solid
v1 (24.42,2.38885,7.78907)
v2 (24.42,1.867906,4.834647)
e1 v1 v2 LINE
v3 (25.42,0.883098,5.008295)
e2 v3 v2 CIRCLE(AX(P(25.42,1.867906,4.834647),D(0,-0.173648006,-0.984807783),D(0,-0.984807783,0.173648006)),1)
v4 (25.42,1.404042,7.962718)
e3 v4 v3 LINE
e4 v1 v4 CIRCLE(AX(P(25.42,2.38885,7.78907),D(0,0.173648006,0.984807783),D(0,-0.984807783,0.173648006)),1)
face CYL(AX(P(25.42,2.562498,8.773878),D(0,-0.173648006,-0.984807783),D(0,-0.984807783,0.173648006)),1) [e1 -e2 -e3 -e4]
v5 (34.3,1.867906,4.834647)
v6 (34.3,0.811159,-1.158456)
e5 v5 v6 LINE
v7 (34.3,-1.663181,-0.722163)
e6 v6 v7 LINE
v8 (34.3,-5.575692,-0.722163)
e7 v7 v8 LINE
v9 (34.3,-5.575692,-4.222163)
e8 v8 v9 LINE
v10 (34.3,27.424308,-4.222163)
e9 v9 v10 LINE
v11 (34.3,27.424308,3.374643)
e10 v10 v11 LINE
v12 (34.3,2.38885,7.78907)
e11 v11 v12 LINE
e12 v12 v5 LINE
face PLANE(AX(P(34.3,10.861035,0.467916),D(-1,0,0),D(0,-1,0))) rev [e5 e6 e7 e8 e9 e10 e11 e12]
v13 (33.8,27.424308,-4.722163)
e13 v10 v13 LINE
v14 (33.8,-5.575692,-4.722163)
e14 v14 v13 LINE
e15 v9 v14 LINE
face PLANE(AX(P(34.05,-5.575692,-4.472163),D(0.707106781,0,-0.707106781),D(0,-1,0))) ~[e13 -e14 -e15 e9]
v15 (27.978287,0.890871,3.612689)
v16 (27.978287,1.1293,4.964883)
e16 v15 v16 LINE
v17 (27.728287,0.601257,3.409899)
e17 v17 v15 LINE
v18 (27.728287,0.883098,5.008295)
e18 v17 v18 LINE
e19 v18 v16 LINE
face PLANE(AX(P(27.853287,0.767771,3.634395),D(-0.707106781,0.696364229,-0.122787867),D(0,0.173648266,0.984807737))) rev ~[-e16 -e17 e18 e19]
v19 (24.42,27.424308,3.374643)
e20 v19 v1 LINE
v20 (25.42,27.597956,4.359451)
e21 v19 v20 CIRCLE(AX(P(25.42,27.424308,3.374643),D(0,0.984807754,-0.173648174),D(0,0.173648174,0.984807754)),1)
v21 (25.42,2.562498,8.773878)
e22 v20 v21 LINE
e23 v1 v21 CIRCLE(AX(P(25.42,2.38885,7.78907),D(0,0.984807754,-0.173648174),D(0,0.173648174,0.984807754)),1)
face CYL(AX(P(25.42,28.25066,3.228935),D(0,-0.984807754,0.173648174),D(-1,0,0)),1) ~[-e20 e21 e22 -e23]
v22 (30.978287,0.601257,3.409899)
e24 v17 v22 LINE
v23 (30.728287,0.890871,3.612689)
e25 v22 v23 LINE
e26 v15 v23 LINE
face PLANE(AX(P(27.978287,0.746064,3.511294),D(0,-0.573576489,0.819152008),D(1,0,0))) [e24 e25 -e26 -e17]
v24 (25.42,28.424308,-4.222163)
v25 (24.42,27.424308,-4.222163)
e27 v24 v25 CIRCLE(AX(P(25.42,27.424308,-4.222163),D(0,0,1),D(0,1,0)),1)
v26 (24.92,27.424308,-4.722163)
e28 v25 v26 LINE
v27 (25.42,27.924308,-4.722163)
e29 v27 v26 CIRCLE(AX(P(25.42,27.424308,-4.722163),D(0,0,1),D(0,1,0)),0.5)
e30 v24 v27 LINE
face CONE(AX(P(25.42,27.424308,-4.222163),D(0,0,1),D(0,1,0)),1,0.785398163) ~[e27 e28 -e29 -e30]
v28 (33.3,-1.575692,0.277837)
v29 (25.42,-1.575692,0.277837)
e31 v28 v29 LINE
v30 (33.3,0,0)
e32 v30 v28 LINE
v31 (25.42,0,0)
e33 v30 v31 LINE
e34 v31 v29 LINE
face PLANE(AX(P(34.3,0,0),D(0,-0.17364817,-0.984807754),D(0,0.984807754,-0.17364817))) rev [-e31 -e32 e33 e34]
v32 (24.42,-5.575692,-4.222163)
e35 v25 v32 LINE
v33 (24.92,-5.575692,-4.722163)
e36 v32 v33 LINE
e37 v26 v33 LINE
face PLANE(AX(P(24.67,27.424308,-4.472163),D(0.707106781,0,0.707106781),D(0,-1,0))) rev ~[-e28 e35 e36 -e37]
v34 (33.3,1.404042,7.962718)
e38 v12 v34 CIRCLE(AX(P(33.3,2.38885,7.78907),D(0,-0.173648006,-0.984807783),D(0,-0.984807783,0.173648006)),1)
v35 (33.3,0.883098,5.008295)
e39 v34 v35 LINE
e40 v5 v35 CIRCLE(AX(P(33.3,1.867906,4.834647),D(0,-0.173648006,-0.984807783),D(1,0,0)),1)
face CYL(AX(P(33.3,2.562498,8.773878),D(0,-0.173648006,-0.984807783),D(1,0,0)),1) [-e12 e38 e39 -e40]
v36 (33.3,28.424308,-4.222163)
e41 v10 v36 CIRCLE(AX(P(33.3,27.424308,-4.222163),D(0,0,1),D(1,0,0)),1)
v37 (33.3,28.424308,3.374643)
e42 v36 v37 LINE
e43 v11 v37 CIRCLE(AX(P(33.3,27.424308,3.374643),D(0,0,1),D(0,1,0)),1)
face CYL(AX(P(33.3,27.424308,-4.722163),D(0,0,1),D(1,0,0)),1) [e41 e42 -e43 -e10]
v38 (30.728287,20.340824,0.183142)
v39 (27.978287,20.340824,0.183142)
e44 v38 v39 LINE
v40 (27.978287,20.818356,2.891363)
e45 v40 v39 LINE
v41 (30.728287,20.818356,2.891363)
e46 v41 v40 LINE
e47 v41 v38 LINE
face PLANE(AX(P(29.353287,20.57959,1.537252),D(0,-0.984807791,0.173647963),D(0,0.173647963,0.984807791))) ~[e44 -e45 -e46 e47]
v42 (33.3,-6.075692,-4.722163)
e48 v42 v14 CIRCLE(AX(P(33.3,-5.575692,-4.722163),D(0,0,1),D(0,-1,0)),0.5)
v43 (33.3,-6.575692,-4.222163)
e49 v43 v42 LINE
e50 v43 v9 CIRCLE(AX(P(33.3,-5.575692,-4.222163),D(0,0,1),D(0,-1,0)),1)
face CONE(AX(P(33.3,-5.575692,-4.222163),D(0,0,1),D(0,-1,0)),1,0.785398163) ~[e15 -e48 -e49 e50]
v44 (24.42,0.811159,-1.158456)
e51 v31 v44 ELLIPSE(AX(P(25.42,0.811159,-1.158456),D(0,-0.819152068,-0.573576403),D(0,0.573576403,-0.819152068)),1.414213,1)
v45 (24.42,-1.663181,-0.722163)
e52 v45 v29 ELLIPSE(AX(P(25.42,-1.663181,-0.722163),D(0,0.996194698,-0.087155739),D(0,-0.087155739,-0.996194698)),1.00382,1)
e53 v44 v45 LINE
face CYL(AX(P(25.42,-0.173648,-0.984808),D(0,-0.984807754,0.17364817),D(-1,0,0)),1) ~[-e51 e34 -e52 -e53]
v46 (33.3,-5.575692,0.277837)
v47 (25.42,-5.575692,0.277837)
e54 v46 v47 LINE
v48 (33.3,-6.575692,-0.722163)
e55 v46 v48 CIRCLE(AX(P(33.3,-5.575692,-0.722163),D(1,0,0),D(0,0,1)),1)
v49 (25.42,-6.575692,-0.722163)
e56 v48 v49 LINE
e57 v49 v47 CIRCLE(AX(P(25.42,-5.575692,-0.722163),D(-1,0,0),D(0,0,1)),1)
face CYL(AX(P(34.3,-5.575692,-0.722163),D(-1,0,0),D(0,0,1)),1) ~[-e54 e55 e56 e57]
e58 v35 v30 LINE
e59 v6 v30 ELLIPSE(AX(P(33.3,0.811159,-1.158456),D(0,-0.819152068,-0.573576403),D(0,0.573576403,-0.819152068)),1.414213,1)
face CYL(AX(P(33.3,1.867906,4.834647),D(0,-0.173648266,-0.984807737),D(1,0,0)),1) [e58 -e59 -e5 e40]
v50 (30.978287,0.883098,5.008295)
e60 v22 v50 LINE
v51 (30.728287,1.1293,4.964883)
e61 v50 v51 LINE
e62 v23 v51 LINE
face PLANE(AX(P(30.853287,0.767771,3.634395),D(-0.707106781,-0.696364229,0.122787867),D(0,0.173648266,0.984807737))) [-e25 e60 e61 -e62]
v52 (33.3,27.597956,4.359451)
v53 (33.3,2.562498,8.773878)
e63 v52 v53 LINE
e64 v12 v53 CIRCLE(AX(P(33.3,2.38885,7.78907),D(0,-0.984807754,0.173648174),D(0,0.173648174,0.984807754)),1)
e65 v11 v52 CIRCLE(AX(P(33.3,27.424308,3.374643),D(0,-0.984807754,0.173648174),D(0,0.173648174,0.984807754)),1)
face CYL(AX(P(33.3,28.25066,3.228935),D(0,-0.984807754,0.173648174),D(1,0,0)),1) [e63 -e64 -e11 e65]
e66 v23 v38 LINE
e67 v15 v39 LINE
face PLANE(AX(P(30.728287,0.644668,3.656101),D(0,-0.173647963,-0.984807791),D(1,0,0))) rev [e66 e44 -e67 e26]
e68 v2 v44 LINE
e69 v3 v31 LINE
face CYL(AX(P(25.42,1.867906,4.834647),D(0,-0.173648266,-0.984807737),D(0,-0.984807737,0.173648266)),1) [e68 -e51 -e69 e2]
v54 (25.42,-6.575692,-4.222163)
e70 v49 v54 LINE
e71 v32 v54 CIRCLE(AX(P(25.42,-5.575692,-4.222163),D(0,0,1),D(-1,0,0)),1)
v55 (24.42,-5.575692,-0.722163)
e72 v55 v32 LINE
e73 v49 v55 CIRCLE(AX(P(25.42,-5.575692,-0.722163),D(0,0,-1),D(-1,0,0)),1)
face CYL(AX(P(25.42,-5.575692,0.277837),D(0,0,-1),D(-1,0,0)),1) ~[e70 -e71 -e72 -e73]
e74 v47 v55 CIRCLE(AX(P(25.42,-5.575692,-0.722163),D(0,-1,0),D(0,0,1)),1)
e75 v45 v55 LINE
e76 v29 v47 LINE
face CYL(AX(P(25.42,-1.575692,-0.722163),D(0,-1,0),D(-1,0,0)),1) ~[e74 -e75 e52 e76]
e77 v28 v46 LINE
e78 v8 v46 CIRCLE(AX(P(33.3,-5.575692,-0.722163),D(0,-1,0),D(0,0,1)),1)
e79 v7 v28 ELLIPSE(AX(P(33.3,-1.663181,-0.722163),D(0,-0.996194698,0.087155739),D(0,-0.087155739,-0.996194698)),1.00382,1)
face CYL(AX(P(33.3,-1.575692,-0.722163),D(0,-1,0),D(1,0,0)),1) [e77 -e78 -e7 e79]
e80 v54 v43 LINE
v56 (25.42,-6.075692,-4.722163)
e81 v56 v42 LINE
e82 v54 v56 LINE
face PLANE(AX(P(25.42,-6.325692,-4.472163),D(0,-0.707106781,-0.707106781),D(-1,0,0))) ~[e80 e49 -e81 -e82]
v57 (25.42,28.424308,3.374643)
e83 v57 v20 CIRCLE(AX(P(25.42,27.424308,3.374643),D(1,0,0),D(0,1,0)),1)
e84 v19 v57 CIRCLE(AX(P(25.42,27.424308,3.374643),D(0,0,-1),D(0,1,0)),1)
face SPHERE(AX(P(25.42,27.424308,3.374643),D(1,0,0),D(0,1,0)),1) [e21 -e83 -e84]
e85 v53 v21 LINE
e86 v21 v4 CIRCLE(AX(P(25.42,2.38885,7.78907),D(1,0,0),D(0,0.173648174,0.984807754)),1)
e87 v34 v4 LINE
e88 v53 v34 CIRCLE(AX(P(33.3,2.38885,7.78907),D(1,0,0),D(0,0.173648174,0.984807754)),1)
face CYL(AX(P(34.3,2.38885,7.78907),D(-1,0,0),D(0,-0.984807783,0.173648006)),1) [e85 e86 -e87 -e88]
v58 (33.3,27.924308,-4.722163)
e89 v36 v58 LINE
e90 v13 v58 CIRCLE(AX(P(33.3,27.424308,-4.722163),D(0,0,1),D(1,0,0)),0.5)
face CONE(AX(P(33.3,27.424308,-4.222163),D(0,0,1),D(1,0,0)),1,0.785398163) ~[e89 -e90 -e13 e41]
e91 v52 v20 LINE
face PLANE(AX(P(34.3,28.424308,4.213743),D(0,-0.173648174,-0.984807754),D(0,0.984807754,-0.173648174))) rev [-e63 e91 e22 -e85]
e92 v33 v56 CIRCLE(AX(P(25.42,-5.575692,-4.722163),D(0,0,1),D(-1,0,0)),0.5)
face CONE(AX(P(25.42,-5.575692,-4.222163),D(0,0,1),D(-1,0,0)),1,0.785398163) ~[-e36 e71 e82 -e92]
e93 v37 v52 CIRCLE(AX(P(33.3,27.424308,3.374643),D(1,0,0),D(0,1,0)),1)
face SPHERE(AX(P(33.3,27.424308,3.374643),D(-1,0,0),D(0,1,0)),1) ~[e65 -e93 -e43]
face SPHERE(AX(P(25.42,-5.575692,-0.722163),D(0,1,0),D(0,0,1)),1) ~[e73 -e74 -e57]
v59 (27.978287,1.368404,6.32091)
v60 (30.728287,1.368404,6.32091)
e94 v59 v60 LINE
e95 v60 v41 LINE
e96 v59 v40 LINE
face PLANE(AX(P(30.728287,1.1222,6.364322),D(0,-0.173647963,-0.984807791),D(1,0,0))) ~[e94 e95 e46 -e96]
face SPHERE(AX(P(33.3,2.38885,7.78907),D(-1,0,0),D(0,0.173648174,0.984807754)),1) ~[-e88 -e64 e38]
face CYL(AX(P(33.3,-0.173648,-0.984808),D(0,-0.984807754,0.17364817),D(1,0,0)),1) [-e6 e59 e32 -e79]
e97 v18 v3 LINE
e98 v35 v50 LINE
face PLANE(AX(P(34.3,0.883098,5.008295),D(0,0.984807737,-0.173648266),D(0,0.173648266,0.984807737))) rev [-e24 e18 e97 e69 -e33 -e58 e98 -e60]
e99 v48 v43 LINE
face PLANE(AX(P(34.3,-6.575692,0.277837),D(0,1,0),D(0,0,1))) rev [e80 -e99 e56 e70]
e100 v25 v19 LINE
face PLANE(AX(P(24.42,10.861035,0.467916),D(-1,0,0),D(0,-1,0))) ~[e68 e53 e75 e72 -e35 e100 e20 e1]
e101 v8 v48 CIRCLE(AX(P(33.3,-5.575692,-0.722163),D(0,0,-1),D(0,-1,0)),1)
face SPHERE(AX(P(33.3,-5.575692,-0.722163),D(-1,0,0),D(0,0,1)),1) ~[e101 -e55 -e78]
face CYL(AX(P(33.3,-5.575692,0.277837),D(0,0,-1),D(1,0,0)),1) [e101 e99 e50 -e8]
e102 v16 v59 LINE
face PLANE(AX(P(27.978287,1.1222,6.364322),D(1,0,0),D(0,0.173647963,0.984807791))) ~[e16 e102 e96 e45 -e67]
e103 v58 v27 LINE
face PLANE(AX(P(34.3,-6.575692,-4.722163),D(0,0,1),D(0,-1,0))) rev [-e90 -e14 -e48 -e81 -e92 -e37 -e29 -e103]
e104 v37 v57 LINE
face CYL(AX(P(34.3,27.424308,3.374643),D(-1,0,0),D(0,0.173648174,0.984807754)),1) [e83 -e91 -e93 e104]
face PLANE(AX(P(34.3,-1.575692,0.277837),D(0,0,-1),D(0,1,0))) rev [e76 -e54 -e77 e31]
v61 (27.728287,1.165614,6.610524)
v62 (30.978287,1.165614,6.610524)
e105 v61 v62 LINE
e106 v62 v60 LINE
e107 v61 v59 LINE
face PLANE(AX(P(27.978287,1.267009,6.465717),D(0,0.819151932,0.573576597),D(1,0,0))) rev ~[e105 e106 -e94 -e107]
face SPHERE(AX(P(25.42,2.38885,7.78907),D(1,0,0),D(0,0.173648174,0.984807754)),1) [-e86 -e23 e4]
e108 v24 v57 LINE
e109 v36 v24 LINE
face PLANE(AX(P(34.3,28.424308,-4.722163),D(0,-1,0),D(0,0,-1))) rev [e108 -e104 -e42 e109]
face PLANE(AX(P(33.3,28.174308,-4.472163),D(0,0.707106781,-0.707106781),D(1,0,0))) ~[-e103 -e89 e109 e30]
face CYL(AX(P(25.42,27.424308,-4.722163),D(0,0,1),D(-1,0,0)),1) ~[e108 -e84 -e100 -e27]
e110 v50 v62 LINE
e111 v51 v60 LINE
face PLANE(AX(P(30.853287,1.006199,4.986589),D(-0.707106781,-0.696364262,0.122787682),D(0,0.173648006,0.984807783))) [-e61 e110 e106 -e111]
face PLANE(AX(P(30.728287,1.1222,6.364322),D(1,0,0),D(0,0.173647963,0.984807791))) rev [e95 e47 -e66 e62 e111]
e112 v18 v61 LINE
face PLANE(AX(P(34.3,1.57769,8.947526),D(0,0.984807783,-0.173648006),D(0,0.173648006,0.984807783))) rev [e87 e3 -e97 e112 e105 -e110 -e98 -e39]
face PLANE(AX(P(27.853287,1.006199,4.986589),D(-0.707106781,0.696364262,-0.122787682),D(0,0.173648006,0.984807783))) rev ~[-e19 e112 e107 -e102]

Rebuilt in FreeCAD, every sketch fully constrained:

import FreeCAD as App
import Part
import Sketcher
from FreeCAD import Vector
Q = App.Units.Quantity


def edges_at(feature, points):
    """Names of the edges that pass closest to the given points."""
    edges = feature.Shape.Edges
    near = lambda p: min(range(len(edges)), key=lambda i: edges[i].distToShape(Part.Vertex(*p))[0])
    return sorted({f"Edge{near(p) + 1}" for p in points})

doc = App.newDocument("Part")
body = doc.addObject("PartDesign::Body", "Body")

# Sketch on YZ plane
sketch1 = body.newObject("Sketcher::SketchObject", "Sketch")
sketch1.AttachmentSupport = (doc.getObject("YZ_Plane"), [""])
sketch1.MapMode = "FlatFace"
sketch1.addGeometry([
    Part.LineSegment(Vector(1.6, 8.9, 0), Vector(0.9, 5, 0)),  # 0
    Part.LineSegment(Vector(0.9, 5, 0), Vector(0, 0, 0)),  # 1
    Part.LineSegment(Vector(0, 0, 0), Vector(-1.6, 0.3, 0)),  # 2
    Part.LineSegment(Vector(-1.6, 0.3, 0), Vector(-6.6, 0.3, 0)),  # 3
    Part.LineSegment(Vector(-6.6, 0.3, 0), Vector(-6.6, -4.7, 0)),  # 4
    Part.LineSegment(Vector(-6.6, -4.7, 0), Vector(28.4, -4.7, 0)),  # 5
    Part.LineSegment(Vector(28.4, -4.7, 0), Vector(28.4, 4.2, 0)),  # 6
    Part.LineSegment(Vector(28.4, 4.2, 0), Vector(1.6, 8.9, 0)),  # 7
], False)
sketch1.addConstraint([
    Sketcher.Constraint("Coincident", 0, 2, 1, 1),
    Sketcher.Constraint("Coincident", 1, 2, 2, 1),
    Sketcher.Constraint("Coincident", 2, 2, 3, 1),
    Sketcher.Constraint("Coincident", 3, 2, 4, 1),
    Sketcher.Constraint("Coincident", 4, 2, 5, 1),
    Sketcher.Constraint("Coincident", 5, 2, 6, 1),
    Sketcher.Constraint("Coincident", 6, 2, 7, 1),
    Sketcher.Constraint("Coincident", 7, 2, 0, 1),
    Sketcher.Constraint("Horizontal", 3),
    Sketcher.Constraint("Vertical", 4),
    Sketcher.Constraint("Horizontal", 5),
    Sketcher.Constraint("Vertical", 6),
    Sketcher.Constraint("Coincident", 1, 2, -1, 1),
    Sketcher.Constraint("Parallel", 0, 1),
    Sketcher.Constraint("Perpendicular", 1, 2),
    Sketcher.Constraint("Parallel", 2, 7),
    Sketcher.Constraint("Equal", 3, 4),
    Sketcher.Constraint("DistanceX", 3, 2, 3, 1, Q("5 mm")),
    Sketcher.Constraint("DistanceX", 5, 1, 5, 2, Q("35 mm")),
    Sketcher.Constraint("Angle", 0, Q("-99.99999 deg")),
    Sketcher.Constraint("Distance", 0, Q("4 mm")),
    Sketcher.Constraint("Distance", 2, Q("1.6 mm")),
    Sketcher.Constraint("DistanceX", -1, 1, 0, 2, Q("0.883098 mm")),
])
pad1 = body.newObject("PartDesign::Pad", "Pad")
pad1.Profile = sketch1
pad1.Length = 9.88

# Sketch on an angled plane
sketch2 = body.newObject("Sketcher::SketchObject", "Sketch001")
sketch2.Placement = App.Placement(Vector(0, 0, 0), App.Rotation(Vector(0, -0.173647963, -0.984807791), Vector(1, 0, 0), Vector(0, -0.984807791, 0.173647963), "ZXY"))
sketch2.addGeometry([
    Part.LineSegment(Vector(-6.5, 6.3, 0), Vector(-6.5, 3.6, 0)),
    Part.LineSegment(Vector(-6.5, 3.6, 0), Vector(-3.7, 3.6, 0)),
    Part.LineSegment(Vector(-3.7, 3.6, 0), Vector(-3.7, 6.3, 0)),
    Part.LineSegment(Vector(-3.7, 6.3, 0), Vector(-6.5, 6.3, 0)),
], False)
sketch2.addConstraint([
    Sketcher.Constraint("Coincident", 0, 2, 1, 1),
    Sketcher.Constraint("Coincident", 1, 2, 2, 1),
    Sketcher.Constraint("Coincident", 2, 2, 3, 1),
    Sketcher.Constraint("Coincident", 3, 2, 0, 1),
    Sketcher.Constraint("Vertical", 0),
    Sketcher.Constraint("Horizontal", 1),
    Sketcher.Constraint("Vertical", 2),
    Sketcher.Constraint("Horizontal", 3),
    Sketcher.Constraint("Equal", 3, 0),
    Sketcher.Constraint("DistanceX", 1, 1, 1, 2, Q("2.75 mm")),
    Sketcher.Constraint("DistanceX", 0, 2, -1, 1, Q("6.462502 mm")),
    Sketcher.Constraint("DistanceY", -1, 1, 0, 2, Q("3.571713 mm")),
])
pocket1 = body.newObject("PartDesign::Pocket", "Pocket")
pocket1.Profile = sketch2
pocket1.Length = 20
doc.recompute()

fillet = body.newObject("PartDesign::Fillet", "Fillet")
fillet.Base = (pocket1, edges_at(pocket1, [
    (9.88, -4.076, 0.278),
    (4.94, -6.576, 0.278),
    (0, -4.076, 0.278),
    (4.94, 1.578, 8.948),
    (0, 15.001, 6.581),
    (9.88, 15.001, 6.581),
    (9.88, 0.442, 2.504),
    (0, 0.442, 2.504),
    (4.94, 28.424, 4.214),
    (9.88, 28.424, -0.254),
    (9.88, -0.788, 0.139),
    (0, -0.788, 0.139),
    (9.88, -6.576, -2.222),
    (0, -6.576, -2.222),
    (0, 28.424, -0.254),
]))
fillet.Radius = 1
doc.recompute()

chamfer = body.newObject("PartDesign::Chamfer", "Chamfer")
chamfer.Base = (fillet, edges_at(fillet, [(0, 10.924, -4.722)]))
chamfer.Size = 0.5
doc.recompute()

chamfer2 = body.newObject("PartDesign::Chamfer", "Chamfer001")
chamfer2.Base = (chamfer, edges_at(chamfer, [
    (3.572, 1.003, 5.686),
    (4.947, 1.122, 6.364),
    (6.322, 1.003, 5.686),
    (4.947, 0.645, 3.656),
]))
chamfer2.Size = 0.25
body2 = doc.addObject("PartDesign::Body", "Body001")
doc.recompute()

body.Placement = App.Placement(Vector(-34.3, 0, 0), App.Rotation(Vector(0, 0, 1), 0))
boolean = body2.newObject("PartDesign::Boolean", "Boolean")
boolean.Type = "Fuse"
boolean.addObjects([body])
body3 = doc.addObject("PartDesign::Body", "Body002")
doc.recompute()

mirroring = doc.addObject("Part::Mirroring", "Mirroring")
mirroring.Source = body2
mirroring.Base = Vector(0, 0, 0)
mirroring.Normal = Vector(1, 0, 0)
body3.BaseFeature = mirroring
doc.recompute()
body2.Visibility = False
mirroring.Visibility = False

doc.recompute()
